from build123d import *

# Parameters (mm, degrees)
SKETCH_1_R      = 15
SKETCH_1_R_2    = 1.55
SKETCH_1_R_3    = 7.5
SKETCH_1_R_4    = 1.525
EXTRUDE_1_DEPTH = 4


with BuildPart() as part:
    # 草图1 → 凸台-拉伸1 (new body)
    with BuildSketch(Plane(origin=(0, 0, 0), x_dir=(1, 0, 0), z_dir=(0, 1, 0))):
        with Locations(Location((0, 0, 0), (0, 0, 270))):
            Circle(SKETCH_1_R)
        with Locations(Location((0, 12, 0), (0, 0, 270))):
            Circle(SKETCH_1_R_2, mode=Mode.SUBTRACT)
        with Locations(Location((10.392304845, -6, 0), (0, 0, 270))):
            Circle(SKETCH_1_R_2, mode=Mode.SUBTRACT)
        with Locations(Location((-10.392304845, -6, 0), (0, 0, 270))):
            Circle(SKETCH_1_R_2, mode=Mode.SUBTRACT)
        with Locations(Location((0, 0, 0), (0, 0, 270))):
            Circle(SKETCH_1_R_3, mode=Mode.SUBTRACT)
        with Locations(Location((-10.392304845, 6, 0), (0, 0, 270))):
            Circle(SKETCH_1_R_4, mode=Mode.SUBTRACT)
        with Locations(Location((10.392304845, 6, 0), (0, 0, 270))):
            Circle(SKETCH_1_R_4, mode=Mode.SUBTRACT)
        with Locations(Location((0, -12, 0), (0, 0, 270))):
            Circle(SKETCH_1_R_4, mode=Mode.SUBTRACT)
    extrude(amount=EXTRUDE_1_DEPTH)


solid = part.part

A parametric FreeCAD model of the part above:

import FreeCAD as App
import Part
import Sketcher
from FreeCAD import Vector

doc = App.newDocument("Part")
body = doc.addObject("PartDesign::Body", "Body")

sketch1 = body.newObject("Sketcher::SketchObject", "Sketch")
sketch1.AttachmentSupport = (doc.getObject("XZ_Plane"), [""])
sketch1.MapMode = "FlatFace"
sketch1.addGeometry([
    Part.Circle(Vector(0, 0, 0), Vector(0, 0, 1), 15),
    Part.Circle(Vector(-10.4, -6, 0), Vector(0, 0, 1), 1.5),
    Part.Circle(Vector(0, -12, 0), Vector(0, 0, 1), 1.6),
    Part.Circle(Vector(-10.4, 6, 0), Vector(0, 0, 1), 1.6),
    Part.Circle(Vector(0, 0, 0), Vector(0, 0, 1), 7.5),
    Part.Circle(Vector(10.4, -6, 0), Vector(0, 0, 1), 1.5),
    Part.Circle(Vector(0, 12, 0), Vector(0, 0, 1), 1.5),
    Part.Circle(Vector(10.4, 6, 0), Vector(0, 0, 1), 1.6),
], False)
sketch1.addConstraint([
    Sketcher.Constraint("Coincident", 0, 3, -1, 1),
    Sketcher.Constraint("Coincident", 4, 3, -1, 1),
    Sketcher.Constraint("Equal", 2, 3),
    Sketcher.Constraint("Equal", 1, 5),
    Sketcher.Constraint("Equal", 5, 6),
    Sketcher.Constraint("Equal", 3, 7),
    Sketcher.Constraint("Symmetric", 3, 3, 5, 3, -1, 1),
    Sketcher.Constraint("Symmetric", 2, 3, 6, 3, -1, 1),
    Sketcher.Constraint("Symmetric", 1, 3, 7, 3, -1, 1),
    Sketcher.Constraint("Symmetric", 1, 3, 5, 3, -2),
    Sketcher.Constraint("PointOnObject", 2, 3, -2),
    Sketcher.Constraint("Diameter", 0, 30.0),
    Sketcher.Constraint("Diameter", 4, 15.0),
    Sketcher.Constraint("Diameter", 2, 3.1),
    Sketcher.Constraint("Diameter", 1, 3.05),
    Sketcher.Constraint("DistanceY", 1, 3, -1, 1, 6.0),
    Sketcher.Constraint("DistanceY", 2, 3, -1, 1, 12.0),
    Sketcher.Constraint("DistanceX", 1, 3, 5, 3, 20.78461),
])
pad1 = body.newObject("PartDesign::Pad", "Pad")
pad1.Profile = sketch1
pad1.Length = 4
pad1.Reversed = True

doc.recompute()
